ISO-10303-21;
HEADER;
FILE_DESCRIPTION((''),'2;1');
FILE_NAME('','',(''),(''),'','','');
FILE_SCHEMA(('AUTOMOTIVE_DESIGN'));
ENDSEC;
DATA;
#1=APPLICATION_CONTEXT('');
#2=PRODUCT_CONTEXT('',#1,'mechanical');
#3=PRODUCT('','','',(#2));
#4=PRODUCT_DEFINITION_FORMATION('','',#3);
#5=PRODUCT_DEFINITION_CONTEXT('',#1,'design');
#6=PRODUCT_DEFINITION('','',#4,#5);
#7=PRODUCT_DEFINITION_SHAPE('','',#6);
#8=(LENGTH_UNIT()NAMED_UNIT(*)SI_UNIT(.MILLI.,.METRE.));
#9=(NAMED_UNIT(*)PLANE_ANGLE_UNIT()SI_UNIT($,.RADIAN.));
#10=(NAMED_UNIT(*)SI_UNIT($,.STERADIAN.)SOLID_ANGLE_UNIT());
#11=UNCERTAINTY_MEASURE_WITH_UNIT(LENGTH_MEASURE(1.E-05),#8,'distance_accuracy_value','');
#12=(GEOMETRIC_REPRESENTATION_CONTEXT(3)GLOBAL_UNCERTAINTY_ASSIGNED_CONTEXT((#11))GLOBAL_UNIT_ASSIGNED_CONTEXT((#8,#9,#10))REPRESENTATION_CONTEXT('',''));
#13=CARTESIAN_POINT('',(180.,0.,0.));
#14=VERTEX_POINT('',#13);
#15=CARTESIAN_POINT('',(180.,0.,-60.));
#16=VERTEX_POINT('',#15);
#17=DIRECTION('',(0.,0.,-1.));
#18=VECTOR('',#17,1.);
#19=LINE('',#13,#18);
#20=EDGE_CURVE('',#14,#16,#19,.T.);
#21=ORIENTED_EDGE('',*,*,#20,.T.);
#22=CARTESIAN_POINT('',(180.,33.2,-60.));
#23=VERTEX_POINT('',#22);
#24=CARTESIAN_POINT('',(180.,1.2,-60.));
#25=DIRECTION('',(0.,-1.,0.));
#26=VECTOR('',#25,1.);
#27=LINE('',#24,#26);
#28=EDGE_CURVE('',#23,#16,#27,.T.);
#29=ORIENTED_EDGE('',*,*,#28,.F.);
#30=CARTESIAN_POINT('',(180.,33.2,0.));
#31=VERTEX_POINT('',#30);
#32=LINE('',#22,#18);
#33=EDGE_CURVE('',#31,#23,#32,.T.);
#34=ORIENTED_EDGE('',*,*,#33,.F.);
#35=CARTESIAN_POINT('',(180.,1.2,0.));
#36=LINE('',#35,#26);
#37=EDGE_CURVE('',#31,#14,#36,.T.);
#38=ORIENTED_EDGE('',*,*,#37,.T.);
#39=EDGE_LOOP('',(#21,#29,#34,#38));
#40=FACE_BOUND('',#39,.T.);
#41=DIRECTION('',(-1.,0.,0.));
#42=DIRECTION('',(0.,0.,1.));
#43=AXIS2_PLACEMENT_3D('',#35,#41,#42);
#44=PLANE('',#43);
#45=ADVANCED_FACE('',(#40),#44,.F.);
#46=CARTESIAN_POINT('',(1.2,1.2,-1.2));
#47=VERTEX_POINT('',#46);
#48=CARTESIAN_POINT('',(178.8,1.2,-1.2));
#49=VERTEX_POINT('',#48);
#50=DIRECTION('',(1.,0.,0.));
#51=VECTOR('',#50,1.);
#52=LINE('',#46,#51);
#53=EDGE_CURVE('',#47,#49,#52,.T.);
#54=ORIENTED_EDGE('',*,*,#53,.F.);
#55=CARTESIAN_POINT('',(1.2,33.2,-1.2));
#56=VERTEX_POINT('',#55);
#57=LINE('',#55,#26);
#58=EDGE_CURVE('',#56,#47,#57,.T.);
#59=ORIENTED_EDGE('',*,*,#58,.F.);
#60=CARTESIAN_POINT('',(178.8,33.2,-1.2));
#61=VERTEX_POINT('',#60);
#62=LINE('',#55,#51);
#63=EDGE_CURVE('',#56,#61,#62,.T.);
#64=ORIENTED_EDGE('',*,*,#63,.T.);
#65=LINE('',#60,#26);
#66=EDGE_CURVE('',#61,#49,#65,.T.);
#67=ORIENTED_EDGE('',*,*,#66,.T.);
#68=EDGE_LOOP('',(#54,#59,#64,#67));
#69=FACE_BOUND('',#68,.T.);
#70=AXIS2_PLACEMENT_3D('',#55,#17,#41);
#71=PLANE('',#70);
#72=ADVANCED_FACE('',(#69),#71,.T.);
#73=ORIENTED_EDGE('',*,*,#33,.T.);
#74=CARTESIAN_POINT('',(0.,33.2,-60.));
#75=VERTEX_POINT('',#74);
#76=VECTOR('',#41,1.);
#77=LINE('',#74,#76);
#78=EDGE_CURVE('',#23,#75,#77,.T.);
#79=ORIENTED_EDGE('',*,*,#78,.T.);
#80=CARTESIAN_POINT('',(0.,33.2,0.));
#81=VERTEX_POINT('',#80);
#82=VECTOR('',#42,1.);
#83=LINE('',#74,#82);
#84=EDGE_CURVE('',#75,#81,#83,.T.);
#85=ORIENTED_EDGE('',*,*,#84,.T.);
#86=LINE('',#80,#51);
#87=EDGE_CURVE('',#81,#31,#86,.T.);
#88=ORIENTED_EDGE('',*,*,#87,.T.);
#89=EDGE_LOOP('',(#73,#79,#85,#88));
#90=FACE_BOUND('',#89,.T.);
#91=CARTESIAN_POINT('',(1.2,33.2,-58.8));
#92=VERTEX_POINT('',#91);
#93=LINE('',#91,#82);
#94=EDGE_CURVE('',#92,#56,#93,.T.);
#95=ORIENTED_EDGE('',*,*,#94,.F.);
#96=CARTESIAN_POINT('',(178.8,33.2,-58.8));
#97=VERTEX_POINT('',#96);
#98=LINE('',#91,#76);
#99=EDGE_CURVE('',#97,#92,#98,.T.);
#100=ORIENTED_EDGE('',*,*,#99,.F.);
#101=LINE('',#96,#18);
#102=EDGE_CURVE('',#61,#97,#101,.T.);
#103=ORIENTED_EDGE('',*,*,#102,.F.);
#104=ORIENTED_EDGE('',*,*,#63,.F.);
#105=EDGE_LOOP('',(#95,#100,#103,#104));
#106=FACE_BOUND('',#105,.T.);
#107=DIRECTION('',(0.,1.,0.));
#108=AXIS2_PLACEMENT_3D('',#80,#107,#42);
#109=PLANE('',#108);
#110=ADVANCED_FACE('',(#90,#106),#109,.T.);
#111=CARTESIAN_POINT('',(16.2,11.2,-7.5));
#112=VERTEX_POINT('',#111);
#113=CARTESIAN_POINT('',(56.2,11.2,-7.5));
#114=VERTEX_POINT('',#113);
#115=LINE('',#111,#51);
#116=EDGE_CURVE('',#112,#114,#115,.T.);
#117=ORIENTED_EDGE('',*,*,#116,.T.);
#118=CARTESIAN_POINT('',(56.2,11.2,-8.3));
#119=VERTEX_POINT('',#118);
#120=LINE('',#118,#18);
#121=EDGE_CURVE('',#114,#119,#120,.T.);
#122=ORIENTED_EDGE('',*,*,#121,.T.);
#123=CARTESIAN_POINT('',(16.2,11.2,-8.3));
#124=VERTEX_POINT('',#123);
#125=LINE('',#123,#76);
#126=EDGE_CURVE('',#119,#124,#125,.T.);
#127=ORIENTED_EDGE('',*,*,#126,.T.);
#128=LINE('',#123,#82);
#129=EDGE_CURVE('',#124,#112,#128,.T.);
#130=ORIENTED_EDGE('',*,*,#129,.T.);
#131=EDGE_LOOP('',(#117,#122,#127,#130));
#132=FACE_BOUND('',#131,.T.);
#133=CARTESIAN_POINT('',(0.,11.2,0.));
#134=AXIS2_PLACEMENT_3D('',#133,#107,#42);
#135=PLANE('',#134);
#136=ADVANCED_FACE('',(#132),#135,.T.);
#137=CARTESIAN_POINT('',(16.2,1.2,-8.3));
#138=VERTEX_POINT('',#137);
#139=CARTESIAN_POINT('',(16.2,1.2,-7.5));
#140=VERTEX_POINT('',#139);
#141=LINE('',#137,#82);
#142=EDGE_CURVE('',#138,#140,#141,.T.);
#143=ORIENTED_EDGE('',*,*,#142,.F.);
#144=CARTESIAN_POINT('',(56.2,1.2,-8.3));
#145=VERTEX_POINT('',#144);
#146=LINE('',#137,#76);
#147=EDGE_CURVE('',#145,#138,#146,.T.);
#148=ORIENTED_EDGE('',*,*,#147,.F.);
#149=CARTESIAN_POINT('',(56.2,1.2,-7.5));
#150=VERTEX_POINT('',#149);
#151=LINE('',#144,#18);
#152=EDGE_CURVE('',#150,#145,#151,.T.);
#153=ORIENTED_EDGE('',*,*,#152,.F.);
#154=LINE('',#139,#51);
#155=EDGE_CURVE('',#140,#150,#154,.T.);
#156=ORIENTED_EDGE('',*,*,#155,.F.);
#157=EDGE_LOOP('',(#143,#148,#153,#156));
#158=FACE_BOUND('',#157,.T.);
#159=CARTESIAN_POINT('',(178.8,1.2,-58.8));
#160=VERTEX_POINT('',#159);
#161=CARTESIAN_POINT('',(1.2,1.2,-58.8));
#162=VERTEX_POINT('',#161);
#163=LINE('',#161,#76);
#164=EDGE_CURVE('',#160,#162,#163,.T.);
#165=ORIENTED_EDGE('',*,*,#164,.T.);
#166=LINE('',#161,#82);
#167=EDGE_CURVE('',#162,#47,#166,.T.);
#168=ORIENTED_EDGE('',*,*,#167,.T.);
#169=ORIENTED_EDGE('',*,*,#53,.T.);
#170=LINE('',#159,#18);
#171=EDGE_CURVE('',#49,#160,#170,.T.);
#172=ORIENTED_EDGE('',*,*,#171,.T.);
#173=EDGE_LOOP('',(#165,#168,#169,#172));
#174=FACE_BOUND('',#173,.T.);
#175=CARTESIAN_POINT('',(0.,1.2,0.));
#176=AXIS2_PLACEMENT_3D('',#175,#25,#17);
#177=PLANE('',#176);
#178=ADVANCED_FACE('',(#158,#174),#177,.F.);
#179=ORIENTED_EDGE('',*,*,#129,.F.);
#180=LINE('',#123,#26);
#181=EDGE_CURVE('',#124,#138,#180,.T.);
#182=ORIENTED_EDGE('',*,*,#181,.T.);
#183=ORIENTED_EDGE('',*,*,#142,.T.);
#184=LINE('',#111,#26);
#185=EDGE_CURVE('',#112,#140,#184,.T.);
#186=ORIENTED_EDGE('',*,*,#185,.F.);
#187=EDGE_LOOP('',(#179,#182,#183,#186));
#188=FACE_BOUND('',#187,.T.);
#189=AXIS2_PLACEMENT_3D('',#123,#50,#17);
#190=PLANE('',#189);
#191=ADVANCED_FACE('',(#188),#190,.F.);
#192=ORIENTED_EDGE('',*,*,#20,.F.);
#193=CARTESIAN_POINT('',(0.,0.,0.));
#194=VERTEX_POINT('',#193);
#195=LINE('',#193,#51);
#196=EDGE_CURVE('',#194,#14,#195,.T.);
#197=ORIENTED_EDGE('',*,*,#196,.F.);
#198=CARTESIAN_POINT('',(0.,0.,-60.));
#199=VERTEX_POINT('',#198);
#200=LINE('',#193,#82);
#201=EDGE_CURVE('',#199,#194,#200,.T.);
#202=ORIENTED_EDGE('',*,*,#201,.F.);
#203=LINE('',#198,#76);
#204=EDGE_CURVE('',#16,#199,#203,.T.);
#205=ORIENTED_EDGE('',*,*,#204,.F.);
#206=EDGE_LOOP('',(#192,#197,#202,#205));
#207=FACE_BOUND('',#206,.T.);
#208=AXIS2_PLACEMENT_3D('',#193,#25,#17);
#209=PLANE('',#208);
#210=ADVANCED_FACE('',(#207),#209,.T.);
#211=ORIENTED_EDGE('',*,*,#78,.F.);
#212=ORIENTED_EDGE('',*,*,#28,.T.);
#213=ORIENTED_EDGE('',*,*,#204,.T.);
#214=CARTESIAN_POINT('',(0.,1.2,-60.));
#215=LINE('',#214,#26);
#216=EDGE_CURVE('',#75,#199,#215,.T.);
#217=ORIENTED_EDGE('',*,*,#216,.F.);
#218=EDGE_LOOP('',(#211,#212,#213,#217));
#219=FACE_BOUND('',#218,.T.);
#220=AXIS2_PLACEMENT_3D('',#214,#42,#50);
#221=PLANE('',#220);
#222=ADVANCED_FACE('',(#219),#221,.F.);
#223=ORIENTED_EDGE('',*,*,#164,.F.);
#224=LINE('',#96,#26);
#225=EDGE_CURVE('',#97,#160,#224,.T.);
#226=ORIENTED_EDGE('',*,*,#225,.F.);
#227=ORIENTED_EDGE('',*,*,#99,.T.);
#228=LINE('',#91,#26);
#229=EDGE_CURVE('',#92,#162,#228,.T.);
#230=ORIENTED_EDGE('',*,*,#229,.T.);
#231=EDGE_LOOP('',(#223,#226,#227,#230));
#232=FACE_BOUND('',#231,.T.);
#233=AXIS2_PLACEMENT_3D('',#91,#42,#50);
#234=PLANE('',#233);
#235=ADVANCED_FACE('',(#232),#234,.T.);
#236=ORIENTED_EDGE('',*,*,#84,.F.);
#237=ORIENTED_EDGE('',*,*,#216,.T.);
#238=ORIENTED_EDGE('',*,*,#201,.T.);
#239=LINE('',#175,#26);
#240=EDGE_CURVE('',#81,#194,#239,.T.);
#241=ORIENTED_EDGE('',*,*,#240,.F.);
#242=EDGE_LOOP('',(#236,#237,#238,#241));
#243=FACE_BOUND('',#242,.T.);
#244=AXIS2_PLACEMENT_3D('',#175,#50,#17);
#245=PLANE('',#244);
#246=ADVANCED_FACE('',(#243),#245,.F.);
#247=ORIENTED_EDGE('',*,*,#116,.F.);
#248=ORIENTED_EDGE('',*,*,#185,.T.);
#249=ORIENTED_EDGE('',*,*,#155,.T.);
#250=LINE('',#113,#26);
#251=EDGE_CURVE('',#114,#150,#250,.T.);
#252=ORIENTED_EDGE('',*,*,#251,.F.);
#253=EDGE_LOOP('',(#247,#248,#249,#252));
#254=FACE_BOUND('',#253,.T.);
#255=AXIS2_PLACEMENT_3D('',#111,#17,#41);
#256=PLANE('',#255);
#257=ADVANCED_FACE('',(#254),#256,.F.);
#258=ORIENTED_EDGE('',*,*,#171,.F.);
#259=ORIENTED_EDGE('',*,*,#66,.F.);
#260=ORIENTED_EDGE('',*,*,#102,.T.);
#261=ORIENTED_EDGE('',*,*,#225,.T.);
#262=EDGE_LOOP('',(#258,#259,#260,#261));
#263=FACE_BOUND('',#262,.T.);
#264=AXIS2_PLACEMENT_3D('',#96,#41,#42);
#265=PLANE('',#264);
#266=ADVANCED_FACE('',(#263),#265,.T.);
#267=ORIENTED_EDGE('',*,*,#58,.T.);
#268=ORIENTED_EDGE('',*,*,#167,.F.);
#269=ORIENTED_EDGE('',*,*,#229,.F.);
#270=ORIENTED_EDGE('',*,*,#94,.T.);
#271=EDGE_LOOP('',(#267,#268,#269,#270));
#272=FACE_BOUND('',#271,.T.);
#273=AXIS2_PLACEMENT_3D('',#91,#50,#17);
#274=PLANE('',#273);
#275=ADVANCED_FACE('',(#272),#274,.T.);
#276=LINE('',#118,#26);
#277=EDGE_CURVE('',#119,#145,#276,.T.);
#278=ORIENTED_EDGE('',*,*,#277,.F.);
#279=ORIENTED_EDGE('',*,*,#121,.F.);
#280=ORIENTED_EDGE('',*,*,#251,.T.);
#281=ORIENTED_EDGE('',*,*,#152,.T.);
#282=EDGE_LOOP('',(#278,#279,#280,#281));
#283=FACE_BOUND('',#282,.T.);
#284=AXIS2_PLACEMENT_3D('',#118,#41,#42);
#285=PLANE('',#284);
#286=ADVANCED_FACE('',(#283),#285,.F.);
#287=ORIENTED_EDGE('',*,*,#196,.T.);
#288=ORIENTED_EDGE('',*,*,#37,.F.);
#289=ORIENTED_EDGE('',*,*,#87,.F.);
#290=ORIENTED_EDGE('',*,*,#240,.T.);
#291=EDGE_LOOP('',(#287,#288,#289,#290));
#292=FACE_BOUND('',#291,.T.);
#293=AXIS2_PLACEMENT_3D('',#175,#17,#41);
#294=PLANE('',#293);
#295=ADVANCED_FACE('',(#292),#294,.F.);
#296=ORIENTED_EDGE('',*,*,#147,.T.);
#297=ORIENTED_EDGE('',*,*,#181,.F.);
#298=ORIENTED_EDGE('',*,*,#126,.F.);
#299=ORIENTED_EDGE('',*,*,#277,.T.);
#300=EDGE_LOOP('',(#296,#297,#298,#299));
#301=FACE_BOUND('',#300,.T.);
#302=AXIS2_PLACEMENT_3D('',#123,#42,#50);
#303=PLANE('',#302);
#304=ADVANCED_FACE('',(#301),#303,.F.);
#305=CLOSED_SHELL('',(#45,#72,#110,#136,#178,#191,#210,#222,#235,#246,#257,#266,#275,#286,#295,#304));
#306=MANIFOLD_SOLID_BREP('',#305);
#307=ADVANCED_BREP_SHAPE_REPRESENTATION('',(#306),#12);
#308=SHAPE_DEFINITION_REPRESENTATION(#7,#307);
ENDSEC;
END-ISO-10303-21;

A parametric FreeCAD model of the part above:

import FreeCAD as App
import Part
import Sketcher
Q = App.Units.Quantity


def add_polygon(sketch, points):
    """Adds a closed chain of lines whose ends are joined by coincident constraints."""
    first, n = sketch.GeometryCount, len(points)
    for a, b in zip(points, points[1:] + points[:1]):
        sketch.addGeometry(Part.LineSegment(App.Vector(*a, 0), App.Vector(*b, 0)), False)
    for i in range(n):
        sketch.addConstraint(Sketcher.Constraint("Coincident", first + i, 2, first + (i + 1) % n, 1))

doc = App.newDocument("Part")
params = doc.addObject("Spreadsheet::Sheet", "Params")
for row, (alias, value) in enumerate([
    ("sketch1_width", "180 mm"),
    ("sketch1_height", "60 mm"),
    ("pad1_length", "1.2 mm"),
    ("sketch2_width", "180 mm"),
    ("sketch2_height", "60 mm"),
    ("sketch2_width2", "177.6 mm"),
    ("sketch2_height2", "57.6 mm"),
    ("pad2_length", "32 mm"),
    ("sketch3_width", "40 mm"),
    ("sketch3_height", "0.8 mm"),
    ("pad3_length", "10 mm"),
], start=1):
    params.set(f"A{row}", alias)
    params.set(f"B{row}", "=" + value)
    params.setAlias(f"B{row}", alias)

body = doc.addObject("PartDesign::Body", "Body")

# Sketch on XZ plane
sketch1 = body.newObject("Sketcher::SketchObject", "Sketch")
sketch1.AttachmentSupport = (doc.getObject("XZ_Plane"), [""])
sketch1.MapMode = "FlatFace"
add_polygon(sketch1, [(0, -60), (0, 0), (180, 0), (180, -60)])  # lines 0-3
sketch1.addConstraint(Sketcher.Constraint("Vertical", 0))
sketch1.addConstraint(Sketcher.Constraint("Horizontal", 1))
sketch1.addConstraint(Sketcher.Constraint("Vertical", 2))
sketch1.addConstraint(Sketcher.Constraint("Horizontal", 3))
sketch1.addConstraint(Sketcher.Constraint("Coincident", 0, 2, -1, 1))
sketch1.addConstraint(Sketcher.Constraint("DistanceX", 1, 1, 1, 2, Q("180 mm")))
sketch1.addConstraint(Sketcher.Constraint("DistanceY", 0, 1, 0, 2, Q("60 mm")))
sketch1.setExpression("Constraints[9]", "Params.sketch1_width")
sketch1.setExpression("Constraints[10]", "Params.sketch1_height")
pad1 = body.newObject("PartDesign::Pad", "Pad")
pad1.Profile = sketch1
pad1.setExpression("Length", "Params.pad1_length")
pad1.Reversed = True

# Sketch on XZ plane
sketch2 = body.newObject("Sketcher::SketchObject", "Sketch001")
sketch2.AttachmentSupport = (doc.getObject("XZ_Plane"), [""])
sketch2.MapMode = "FlatFace"
sketch2.AttachmentOffset = App.Placement(App.Vector(0, 0, -1.2), App.Rotation())
add_polygon(sketch2, [(0, -60), (0, 0), (180, 0), (180, -60)])  # lines 0-3
add_polygon(sketch2, [(178.8, -1.2), (1.2, -1.2), (1.2, -58.8), (178.8, -58.8)])  # lines 4-7
sketch2.addConstraint(Sketcher.Constraint("Vertical", 0))
sketch2.addConstraint(Sketcher.Constraint("Horizontal", 1))
sketch2.addConstraint(Sketcher.Constraint("Vertical", 2))
sketch2.addConstraint(Sketcher.Constraint("Horizontal", 3))
sketch2.addConstraint(Sketcher.Constraint("Horizontal", 4))
sketch2.addConstraint(Sketcher.Constraint("Vertical", 5))
sketch2.addConstraint(Sketcher.Constraint("Horizontal", 6))
sketch2.addConstraint(Sketcher.Constraint("Vertical", 7))
sketch2.addConstraint(Sketcher.Constraint("Coincident", 0, 2, -1, 1))
sketch2.addConstraint(Sketcher.Constraint("DistanceX", 1, 1, 1, 2, Q("180 mm")))
sketch2.addConstraint(Sketcher.Constraint("DistanceY", 0, 1, 0, 2, Q("60 mm")))
sketch2.addConstraint(Sketcher.Constraint("DistanceX", 4, 2, 4, 1, Q("177.6 mm")))
sketch2.addConstraint(Sketcher.Constraint("DistanceY", 5, 2, 5, 1, Q("57.6 mm")))
sketch2.addConstraint(Sketcher.Constraint("DistanceX", -1, 1, 4, 2, Q("1.2 mm")))
sketch2.addConstraint(Sketcher.Constraint("DistanceY", 4, 2, -1, 1, Q("1.2 mm")))
sketch2.setExpression("Constraints[17]", "Params.sketch2_width")
sketch2.setExpression("Constraints[18]", "Params.sketch2_height")
sketch2.setExpression("Constraints[19]", "Params.sketch2_width2")
sketch2.setExpression("Constraints[20]", "Params.sketch2_height2")
pad2 = body.newObject("PartDesign::Pad", "Pad001")
pad2.Profile = sketch2
pad2.setExpression("Length", "Params.pad2_length")
pad2.Reversed = True

# Sketch on XZ plane
sketch3 = body.newObject("Sketcher::SketchObject", "Sketch002")
sketch3.AttachmentSupport = (doc.getObject("XZ_Plane"), [""])
sketch3.MapMode = "FlatFace"
sketch3.AttachmentOffset = App.Placement(App.Vector(0, 0, -1.2), App.Rotation())
add_polygon(sketch3, [(16.2, -8.3), (16.2, -7.5), (56.2, -7.5), (56.2, -8.3)])  # lines 0-3
sketch3.addConstraint(Sketcher.Constraint("Vertical", 0))
sketch3.addConstraint(Sketcher.Constraint("Horizontal", 1))
sketch3.addConstraint(Sketcher.Constraint("Vertical", 2))
sketch3.addConstraint(Sketcher.Constraint("Horizontal", 3))
sketch3.addConstraint(Sketcher.Constraint("DistanceX", 1, 1, 1, 2, Q("40 mm")))
sketch3.addConstraint(Sketcher.Constraint("DistanceY", 0, 1, 0, 2, Q("0.8 mm")))
sketch3.addConstraint(Sketcher.Constraint("DistanceX", -1, 1, 0, 2, Q("16.2 mm")))
sketch3.addConstraint(Sketcher.Constraint("DistanceY", 0, 2, -1, 1, Q("7.5 mm")))
sketch3.setExpression("Constraints[8]", "Params.sketch3_width")
sketch3.setExpression("Constraints[9]", "Params.sketch3_height")
pad3 = body.newObject("PartDesign::Pad", "Pad002")
pad3.Profile = sketch3
pad3.setExpression("Length", "Params.pad3_length")
pad3.Reversed = True

doc.recompute()
